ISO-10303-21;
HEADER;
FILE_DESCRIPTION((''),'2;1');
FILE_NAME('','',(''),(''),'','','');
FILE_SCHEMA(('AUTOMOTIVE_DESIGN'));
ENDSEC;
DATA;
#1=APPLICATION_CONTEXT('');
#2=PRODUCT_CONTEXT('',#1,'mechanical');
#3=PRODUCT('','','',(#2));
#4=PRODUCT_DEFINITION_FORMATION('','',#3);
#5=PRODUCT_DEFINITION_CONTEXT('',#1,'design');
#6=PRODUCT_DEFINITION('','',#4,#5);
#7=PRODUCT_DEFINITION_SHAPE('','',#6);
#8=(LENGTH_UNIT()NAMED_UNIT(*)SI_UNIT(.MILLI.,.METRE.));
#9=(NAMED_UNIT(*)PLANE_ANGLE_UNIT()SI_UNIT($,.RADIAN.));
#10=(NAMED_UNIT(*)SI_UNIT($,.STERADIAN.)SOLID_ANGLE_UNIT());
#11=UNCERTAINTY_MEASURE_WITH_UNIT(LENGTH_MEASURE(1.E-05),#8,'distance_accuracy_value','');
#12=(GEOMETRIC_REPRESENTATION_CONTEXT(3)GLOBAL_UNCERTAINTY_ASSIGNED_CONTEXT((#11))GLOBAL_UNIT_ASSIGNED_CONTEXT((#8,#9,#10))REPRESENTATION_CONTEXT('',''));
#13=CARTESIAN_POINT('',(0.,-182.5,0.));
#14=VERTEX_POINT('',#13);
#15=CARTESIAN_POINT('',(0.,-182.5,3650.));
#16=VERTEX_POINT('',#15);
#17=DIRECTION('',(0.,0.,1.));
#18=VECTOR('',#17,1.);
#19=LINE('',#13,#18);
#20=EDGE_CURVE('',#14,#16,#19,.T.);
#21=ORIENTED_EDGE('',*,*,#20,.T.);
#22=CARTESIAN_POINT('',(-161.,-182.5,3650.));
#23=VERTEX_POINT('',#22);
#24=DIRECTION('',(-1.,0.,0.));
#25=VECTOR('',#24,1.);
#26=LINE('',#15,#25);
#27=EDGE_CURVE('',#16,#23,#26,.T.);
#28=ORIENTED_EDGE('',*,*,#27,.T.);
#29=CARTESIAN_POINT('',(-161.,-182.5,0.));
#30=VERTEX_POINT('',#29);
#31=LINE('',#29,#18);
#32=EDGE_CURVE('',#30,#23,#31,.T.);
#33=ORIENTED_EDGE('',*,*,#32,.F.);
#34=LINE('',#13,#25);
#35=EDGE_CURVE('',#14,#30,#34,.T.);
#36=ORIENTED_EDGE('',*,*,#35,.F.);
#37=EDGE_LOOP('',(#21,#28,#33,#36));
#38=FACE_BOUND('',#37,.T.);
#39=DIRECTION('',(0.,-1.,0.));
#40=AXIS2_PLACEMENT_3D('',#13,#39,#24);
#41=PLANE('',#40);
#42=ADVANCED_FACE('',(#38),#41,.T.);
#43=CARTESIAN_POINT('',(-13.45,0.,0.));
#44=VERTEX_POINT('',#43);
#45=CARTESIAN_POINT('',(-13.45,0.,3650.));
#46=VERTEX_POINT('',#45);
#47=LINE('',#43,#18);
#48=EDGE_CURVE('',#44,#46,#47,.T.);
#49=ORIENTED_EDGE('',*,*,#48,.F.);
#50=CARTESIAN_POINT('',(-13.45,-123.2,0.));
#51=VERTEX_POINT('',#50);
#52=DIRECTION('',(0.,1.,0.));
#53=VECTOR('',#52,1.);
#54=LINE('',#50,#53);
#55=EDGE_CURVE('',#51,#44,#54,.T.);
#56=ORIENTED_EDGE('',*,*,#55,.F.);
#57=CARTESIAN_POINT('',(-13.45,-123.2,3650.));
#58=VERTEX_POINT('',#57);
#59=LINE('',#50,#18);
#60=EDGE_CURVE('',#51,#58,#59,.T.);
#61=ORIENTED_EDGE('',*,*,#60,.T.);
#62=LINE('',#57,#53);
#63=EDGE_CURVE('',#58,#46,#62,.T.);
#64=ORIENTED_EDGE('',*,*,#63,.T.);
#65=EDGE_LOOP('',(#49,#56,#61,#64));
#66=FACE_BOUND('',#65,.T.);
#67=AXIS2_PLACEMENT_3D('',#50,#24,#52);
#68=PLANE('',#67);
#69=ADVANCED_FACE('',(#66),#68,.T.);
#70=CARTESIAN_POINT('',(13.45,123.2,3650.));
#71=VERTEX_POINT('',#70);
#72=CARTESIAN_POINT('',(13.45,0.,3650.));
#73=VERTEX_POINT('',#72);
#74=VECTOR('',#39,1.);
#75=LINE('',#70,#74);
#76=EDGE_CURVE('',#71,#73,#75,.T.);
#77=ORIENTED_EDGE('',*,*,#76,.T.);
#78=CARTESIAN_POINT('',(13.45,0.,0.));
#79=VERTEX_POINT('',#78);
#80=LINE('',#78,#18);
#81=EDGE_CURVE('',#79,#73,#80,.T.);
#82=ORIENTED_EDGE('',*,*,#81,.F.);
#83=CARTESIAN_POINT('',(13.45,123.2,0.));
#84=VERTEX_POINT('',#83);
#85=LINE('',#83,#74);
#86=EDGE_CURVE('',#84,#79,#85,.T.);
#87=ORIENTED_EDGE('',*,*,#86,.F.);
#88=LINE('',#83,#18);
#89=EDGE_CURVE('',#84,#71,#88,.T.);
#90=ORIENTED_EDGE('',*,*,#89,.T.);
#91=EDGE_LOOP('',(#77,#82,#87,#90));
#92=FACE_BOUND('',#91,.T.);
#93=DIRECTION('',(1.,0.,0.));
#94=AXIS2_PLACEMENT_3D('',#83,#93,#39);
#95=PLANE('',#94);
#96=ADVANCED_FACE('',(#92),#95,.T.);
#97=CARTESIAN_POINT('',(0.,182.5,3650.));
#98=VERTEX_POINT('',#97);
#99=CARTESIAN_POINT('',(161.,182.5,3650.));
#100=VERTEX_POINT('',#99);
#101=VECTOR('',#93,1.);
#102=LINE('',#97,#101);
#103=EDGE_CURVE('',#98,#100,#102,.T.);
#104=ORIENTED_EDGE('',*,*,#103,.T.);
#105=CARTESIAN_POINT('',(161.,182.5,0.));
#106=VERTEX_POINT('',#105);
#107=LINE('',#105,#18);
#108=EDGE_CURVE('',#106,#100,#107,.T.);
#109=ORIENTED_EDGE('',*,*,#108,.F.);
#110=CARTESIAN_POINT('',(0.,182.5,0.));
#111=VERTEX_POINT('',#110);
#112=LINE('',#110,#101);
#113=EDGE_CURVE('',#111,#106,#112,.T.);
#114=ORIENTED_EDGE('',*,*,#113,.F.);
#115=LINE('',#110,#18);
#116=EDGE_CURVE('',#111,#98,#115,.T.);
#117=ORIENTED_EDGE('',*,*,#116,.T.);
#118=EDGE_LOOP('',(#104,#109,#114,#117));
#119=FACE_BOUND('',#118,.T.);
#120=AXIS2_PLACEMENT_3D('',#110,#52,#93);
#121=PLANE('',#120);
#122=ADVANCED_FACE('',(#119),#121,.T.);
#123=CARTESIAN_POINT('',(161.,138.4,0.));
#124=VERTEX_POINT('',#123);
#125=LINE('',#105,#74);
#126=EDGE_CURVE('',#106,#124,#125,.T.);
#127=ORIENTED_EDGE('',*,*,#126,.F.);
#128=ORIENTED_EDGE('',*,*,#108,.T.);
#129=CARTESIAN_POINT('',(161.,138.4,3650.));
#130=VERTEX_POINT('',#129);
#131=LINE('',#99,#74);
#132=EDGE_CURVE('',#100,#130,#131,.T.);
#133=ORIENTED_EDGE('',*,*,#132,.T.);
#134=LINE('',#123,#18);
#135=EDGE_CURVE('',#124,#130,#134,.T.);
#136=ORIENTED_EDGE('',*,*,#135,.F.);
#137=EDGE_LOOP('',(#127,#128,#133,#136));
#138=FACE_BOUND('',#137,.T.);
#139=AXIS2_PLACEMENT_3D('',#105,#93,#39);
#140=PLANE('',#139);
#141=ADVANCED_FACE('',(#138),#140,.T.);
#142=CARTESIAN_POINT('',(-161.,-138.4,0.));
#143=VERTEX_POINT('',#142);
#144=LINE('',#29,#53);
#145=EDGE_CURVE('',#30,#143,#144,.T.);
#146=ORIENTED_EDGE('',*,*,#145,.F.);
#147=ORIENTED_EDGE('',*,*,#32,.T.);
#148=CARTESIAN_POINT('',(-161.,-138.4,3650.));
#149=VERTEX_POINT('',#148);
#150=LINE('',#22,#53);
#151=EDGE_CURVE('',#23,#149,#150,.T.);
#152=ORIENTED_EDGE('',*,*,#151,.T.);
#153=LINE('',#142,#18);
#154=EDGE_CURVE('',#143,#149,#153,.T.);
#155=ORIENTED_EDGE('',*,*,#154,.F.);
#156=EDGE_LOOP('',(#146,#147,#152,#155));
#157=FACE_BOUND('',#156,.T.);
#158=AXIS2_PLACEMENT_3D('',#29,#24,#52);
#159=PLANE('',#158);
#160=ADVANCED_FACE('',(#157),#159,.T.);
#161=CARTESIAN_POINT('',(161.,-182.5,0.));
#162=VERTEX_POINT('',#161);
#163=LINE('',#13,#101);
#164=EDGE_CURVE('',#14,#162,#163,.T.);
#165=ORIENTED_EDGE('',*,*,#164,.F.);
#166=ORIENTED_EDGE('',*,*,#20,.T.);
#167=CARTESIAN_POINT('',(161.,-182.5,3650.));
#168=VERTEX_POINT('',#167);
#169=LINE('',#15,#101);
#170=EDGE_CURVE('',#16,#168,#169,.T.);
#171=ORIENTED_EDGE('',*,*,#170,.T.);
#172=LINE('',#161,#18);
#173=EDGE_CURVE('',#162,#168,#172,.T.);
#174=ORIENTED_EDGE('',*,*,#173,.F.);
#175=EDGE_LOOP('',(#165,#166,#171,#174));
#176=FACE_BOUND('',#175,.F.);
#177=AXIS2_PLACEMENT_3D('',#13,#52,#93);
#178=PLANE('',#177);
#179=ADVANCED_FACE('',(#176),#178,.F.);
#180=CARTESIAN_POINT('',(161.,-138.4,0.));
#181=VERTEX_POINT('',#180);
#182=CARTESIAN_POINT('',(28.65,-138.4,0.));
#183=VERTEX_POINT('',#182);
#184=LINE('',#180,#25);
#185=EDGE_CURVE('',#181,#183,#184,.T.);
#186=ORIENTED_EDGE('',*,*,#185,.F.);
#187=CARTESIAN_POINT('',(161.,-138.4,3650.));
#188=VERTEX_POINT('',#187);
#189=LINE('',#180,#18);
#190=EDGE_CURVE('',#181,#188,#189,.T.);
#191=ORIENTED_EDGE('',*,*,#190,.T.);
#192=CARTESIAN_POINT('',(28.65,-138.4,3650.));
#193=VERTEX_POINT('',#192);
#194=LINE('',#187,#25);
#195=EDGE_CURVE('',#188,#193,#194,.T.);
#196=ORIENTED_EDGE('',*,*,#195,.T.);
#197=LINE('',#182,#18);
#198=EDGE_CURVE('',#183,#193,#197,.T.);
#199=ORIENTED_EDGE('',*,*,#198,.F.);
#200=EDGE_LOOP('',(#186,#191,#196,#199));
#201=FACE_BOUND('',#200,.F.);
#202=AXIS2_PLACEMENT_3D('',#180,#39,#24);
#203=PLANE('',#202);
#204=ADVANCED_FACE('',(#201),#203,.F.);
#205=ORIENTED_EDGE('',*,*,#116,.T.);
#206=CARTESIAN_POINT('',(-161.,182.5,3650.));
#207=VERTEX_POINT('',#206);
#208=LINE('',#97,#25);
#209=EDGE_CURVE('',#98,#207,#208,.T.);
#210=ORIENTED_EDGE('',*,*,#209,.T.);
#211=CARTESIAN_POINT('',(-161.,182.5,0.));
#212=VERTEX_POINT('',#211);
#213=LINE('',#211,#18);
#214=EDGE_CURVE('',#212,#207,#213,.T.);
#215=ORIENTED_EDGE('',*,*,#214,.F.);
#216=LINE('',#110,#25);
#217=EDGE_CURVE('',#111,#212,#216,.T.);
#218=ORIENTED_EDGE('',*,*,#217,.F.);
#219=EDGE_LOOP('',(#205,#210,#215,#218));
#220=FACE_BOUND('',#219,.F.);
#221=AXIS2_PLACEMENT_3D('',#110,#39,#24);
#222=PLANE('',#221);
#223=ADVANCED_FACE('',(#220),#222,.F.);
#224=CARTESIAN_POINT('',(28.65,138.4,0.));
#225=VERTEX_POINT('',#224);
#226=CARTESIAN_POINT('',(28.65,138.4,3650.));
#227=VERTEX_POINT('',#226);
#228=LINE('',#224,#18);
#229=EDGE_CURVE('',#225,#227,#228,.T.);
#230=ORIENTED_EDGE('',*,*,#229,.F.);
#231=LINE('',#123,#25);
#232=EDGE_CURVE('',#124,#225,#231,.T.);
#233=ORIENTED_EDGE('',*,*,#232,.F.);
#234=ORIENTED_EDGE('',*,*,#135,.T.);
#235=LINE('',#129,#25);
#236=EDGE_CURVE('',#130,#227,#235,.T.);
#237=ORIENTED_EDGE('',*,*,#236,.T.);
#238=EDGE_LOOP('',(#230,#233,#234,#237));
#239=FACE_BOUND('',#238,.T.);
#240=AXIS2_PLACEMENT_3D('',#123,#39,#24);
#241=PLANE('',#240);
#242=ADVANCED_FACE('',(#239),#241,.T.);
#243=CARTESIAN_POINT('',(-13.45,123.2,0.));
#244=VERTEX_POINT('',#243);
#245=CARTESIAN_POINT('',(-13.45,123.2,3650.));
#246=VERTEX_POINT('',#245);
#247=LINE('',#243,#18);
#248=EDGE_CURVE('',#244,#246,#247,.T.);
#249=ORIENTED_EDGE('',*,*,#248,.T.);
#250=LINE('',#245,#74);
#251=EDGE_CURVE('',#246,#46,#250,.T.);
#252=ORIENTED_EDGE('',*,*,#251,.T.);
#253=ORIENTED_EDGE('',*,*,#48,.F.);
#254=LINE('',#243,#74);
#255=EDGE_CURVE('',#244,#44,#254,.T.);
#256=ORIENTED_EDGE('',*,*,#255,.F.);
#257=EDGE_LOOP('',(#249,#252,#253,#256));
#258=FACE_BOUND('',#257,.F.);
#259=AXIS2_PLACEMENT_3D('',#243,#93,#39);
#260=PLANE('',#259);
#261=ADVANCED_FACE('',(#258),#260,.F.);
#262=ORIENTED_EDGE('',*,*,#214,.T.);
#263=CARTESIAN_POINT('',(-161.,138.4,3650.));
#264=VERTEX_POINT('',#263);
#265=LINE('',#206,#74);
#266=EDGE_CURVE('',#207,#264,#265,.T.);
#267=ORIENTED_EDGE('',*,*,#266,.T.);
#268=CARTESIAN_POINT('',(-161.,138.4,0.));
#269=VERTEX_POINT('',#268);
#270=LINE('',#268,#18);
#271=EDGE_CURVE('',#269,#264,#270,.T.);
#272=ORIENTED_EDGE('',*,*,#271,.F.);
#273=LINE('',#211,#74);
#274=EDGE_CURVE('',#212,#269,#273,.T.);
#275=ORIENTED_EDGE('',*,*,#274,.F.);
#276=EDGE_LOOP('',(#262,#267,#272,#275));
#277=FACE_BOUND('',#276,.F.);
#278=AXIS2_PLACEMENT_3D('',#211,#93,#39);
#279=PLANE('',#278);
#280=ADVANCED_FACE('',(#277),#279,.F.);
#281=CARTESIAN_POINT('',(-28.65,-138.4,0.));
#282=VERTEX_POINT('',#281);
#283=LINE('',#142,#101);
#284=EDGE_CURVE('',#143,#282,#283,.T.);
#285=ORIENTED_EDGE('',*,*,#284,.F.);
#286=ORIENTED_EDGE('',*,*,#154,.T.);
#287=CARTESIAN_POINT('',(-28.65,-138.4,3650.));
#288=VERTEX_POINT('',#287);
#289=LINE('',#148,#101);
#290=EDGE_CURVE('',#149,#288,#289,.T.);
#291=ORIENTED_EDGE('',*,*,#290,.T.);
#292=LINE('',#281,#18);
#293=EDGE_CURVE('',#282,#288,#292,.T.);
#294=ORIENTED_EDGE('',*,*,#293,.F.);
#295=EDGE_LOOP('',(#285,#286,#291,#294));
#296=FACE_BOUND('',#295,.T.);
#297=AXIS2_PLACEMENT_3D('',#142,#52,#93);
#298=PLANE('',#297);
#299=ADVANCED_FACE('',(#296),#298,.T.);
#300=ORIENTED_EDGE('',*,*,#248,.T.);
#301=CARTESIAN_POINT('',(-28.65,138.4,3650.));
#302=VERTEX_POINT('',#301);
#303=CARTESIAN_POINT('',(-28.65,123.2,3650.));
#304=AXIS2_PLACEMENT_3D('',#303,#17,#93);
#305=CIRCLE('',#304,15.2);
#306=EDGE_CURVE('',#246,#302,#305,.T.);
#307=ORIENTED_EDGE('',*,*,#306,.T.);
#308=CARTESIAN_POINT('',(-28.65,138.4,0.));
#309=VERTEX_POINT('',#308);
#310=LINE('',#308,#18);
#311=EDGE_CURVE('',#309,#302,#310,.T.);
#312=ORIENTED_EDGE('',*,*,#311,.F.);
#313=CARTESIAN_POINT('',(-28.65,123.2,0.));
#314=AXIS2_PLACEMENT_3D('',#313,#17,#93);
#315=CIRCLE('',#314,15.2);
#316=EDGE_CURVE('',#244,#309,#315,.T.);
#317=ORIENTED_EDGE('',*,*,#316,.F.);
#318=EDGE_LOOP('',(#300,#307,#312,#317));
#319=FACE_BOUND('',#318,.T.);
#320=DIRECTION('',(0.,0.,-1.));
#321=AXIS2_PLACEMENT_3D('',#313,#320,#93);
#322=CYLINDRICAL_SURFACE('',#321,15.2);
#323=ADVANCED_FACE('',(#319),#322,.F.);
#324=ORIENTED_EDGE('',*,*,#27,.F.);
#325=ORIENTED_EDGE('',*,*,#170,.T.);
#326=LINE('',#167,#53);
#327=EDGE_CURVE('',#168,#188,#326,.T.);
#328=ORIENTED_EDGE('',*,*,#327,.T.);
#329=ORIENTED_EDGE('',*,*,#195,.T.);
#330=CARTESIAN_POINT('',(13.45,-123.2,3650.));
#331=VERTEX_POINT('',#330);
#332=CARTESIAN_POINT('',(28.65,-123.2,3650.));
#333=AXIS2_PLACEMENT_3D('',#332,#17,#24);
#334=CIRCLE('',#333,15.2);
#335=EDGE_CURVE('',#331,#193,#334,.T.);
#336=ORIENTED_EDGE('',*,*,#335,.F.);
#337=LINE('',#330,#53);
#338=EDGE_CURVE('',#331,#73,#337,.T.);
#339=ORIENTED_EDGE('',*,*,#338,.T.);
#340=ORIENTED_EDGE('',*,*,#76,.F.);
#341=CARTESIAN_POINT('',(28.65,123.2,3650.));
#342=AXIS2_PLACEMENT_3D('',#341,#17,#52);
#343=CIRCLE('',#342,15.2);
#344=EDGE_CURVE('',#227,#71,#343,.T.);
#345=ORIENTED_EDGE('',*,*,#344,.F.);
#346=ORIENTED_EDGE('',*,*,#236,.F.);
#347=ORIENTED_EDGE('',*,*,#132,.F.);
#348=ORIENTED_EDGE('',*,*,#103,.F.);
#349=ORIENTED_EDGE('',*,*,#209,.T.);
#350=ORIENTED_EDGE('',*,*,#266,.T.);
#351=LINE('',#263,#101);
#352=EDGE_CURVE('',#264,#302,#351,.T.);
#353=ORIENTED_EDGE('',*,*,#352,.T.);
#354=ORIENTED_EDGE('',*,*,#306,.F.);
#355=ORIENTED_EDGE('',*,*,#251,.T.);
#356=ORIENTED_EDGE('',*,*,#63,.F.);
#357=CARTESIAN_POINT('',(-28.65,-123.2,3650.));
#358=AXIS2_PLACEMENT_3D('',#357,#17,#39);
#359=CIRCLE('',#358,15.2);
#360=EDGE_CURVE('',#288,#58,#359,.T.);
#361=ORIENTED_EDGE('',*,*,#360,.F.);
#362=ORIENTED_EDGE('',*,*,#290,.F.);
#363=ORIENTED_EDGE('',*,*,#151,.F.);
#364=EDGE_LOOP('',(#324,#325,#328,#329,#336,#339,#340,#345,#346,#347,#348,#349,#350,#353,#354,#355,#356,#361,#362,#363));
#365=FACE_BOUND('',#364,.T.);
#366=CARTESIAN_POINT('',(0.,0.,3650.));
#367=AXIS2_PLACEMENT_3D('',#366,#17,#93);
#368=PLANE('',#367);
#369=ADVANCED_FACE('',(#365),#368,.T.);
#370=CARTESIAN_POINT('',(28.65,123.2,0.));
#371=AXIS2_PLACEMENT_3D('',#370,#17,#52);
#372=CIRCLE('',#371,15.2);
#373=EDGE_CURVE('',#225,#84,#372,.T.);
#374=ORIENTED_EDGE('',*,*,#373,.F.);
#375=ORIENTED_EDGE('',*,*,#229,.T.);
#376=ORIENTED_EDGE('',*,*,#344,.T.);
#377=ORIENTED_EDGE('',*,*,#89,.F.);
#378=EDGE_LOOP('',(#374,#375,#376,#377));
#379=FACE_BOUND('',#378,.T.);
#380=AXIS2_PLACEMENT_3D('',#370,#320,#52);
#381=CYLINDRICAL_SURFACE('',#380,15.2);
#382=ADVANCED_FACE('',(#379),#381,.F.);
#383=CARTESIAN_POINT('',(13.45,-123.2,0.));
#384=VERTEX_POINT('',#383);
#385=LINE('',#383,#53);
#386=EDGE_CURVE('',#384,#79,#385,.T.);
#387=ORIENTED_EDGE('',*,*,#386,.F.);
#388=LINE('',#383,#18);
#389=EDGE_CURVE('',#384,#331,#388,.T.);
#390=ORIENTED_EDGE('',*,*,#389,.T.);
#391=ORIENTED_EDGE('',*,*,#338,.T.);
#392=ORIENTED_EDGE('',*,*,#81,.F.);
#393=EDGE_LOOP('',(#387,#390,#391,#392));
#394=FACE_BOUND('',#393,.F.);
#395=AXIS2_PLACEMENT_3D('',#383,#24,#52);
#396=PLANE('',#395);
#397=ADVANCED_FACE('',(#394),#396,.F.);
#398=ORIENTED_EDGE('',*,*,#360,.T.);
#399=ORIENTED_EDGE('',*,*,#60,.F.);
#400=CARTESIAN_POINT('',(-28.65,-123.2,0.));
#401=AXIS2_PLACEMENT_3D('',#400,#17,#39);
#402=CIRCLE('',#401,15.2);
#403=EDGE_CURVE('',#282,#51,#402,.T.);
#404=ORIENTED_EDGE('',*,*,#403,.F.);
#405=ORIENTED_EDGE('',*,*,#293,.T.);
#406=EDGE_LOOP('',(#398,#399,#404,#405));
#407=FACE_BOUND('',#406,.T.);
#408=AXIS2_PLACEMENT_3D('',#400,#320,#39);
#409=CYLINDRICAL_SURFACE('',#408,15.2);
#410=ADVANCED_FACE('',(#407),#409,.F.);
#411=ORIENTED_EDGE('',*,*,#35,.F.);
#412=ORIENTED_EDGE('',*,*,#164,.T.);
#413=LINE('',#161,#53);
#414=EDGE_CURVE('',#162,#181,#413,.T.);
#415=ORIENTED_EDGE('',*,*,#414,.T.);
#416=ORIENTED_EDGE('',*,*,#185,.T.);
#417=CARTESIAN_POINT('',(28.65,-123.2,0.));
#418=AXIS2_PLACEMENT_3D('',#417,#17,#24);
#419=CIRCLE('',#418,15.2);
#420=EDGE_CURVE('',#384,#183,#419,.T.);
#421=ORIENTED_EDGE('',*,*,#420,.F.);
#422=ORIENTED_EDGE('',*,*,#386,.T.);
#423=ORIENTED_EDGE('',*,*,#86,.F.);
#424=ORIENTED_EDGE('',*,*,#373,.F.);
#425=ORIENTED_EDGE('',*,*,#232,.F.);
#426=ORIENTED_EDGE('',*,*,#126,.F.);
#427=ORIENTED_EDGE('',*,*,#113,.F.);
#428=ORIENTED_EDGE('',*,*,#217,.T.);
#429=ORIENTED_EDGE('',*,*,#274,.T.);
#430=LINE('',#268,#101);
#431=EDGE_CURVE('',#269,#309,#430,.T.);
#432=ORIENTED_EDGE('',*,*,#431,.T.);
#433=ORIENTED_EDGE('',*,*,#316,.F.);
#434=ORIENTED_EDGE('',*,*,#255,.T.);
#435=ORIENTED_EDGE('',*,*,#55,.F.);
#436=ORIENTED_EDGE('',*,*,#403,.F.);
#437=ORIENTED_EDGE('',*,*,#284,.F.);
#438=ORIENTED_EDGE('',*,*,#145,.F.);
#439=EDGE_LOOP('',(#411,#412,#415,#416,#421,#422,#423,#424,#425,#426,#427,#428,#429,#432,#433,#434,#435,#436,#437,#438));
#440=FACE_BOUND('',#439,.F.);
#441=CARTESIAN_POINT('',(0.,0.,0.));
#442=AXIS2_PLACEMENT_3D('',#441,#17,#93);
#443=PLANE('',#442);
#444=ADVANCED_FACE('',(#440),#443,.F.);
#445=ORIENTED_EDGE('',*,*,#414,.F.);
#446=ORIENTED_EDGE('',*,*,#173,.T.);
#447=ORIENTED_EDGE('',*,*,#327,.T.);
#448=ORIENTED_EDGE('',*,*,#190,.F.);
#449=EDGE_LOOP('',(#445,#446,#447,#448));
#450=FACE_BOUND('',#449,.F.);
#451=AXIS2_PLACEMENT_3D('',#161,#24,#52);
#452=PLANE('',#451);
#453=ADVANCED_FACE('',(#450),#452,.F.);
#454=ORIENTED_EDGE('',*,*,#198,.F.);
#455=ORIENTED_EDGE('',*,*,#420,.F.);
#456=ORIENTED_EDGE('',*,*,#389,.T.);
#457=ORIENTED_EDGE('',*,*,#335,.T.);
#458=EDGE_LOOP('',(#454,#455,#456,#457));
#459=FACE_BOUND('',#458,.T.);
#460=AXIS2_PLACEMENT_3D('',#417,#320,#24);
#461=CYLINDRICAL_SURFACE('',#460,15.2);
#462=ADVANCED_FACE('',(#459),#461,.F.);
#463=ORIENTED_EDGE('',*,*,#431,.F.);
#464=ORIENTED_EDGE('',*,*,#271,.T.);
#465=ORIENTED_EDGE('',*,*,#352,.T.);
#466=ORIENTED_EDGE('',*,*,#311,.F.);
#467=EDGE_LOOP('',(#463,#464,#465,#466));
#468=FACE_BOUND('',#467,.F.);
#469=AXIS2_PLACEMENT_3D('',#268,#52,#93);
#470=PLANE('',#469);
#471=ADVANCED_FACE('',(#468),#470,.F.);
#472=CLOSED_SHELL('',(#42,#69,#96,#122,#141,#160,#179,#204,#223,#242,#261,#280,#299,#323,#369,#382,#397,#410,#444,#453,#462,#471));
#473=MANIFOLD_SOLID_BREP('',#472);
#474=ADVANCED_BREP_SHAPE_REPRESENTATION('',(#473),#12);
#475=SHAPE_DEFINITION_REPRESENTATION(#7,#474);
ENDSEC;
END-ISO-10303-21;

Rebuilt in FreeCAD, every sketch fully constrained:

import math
import FreeCAD as App
import Part
import Sketcher

V = App.Vector

doc = App.newDocument("Part")
body = doc.addObject("PartDesign::Body", "Body")

sketch1 = doc.addObject("Sketcher::SketchObject", "Sketch")
body.addObject(sketch1)
sketch1.AttachmentSupport = (doc.XY_Plane, [""])
sketch1.MapMode = "FlatFace"
sketch1.addGeometry([
    Part.LineSegment(V(-161, -138.4, 0), V(-161, -182.5, 0)),
    Part.LineSegment(V(-161, -182.5, 0), V(161, -182.5, 0)),
    Part.LineSegment(V(161, -182.5, 0), V(161, -138.4, 0)),
    Part.LineSegment(V(161, -138.4, 0), V(28.65, -138.4, 0)),
    Part.ArcOfCircle(Part.Circle(V(28.65, -123.2, 0), V(0, 0, 1), 15.2), math.radians(180), math.radians(270)),
    Part.LineSegment(V(13.45, -123.2, 0), V(13.45, 123.2, 0)),
    Part.ArcOfCircle(Part.Circle(V(28.65, 123.2, 0), V(0, 0, 1), 15.2), math.radians(90), math.radians(180)),
    Part.LineSegment(V(28.65, 138.4, 0), V(161, 138.4, 0)),
    Part.LineSegment(V(161, 138.4, 0), V(161, 182.5, 0)),
    Part.LineSegment(V(161, 182.5, 0), V(-161, 182.5, 0)),
    Part.LineSegment(V(-161, 182.5, 0), V(-161, 138.4, 0)),
    Part.LineSegment(V(-161, 138.4, 0), V(-28.65, 138.4, 0)),
    Part.ArcOfCircle(Part.Circle(V(-28.65, 123.2, 0), V(0, 0, 1), 15.2), math.radians(0), math.radians(90)),
    Part.LineSegment(V(-13.45, 123.2, 0), V(-13.45, -123.2, 0)),
    Part.ArcOfCircle(Part.Circle(V(-28.65, -123.2, 0), V(0, 0, 1), 15.2), math.radians(-90), math.radians(0)),
    Part.LineSegment(V(-28.65, -138.4, 0), V(-161, -138.4, 0)),
], False)
sketch1.addConstraint([
    Sketcher.Constraint("Coincident", 0, 2, 1, 1),
    Sketcher.Constraint("Coincident", 1, 2, 2, 1),
    Sketcher.Constraint("Coincident", 2, 2, 3, 1),
    Sketcher.Constraint("Tangent", 3, 2, 4, 2),
    Sketcher.Constraint("Tangent", 4, 1, 5, 1),
    Sketcher.Constraint("Tangent", 5, 2, 6, 2),
    Sketcher.Constraint("Tangent", 6, 1, 7, 1),
    Sketcher.Constraint("Coincident", 7, 2, 8, 1),
    Sketcher.Constraint("Coincident", 8, 2, 9, 1),
    Sketcher.Constraint("Coincident", 9, 2, 10, 1),
    Sketcher.Constraint("Coincident", 10, 2, 11, 1),
    Sketcher.Constraint("Tangent", 11, 2, 12, 2),
    Sketcher.Constraint("Tangent", 12, 1, 13, 1),
    Sketcher.Constraint("Tangent", 13, 2, 14, 2),
    Sketcher.Constraint("Tangent", 14, 1, 15, 1),
    Sketcher.Constraint("Coincident", 15, 2, 0, 1),
    Sketcher.Constraint("Vertical", 0),
    Sketcher.Constraint("Horizontal", 1),
    Sketcher.Constraint("Vertical", 2),
    Sketcher.Constraint("Horizontal", 3),
    Sketcher.Constraint("Vertical", 5),
    Sketcher.Constraint("Horizontal", 7),
    Sketcher.Constraint("Vertical", 8),
    Sketcher.Constraint("Horizontal", 9),
    Sketcher.Constraint("Vertical", 10),
    Sketcher.Constraint("Horizontal", 11),
    Sketcher.Constraint("Vertical", 13),
    Sketcher.Constraint("Horizontal", 15),
    Sketcher.Constraint("Equal", 4, 6),
    Sketcher.Constraint("Equal", 6, 12),
    Sketcher.Constraint("Equal", 12, 14),
    Sketcher.Constraint("Symmetric", 4, 3, 12, 3, -1, 1),
    Sketcher.Constraint("Symmetric", 0, 2, 8, 2, -1, 1),
    Sketcher.Constraint("Symmetric", 7, 2, 10, 2, -2),
    Sketcher.Constraint("Symmetric", 2, 2, 15, 2, -2),
    Sketcher.Constraint("Radius", 4, 15.2),
    Sketcher.Constraint("DistanceY", 0, 2, 0, 1, 44.1),
    Sketcher.Constraint("DistanceX", 0, 2, -1, 1, 161.0),
    Sketcher.Constraint("DistanceY", 0, 2, -1, 1, 182.5),
    Sketcher.Constraint("DistanceX", -1, 1, 4, 1, 13.45),
])
pad1 = doc.addObject("PartDesign::Pad", "Pad")
body.addObject(pad1)
pad1.Profile = sketch1
pad1.Length = 3650

doc.recompute()
